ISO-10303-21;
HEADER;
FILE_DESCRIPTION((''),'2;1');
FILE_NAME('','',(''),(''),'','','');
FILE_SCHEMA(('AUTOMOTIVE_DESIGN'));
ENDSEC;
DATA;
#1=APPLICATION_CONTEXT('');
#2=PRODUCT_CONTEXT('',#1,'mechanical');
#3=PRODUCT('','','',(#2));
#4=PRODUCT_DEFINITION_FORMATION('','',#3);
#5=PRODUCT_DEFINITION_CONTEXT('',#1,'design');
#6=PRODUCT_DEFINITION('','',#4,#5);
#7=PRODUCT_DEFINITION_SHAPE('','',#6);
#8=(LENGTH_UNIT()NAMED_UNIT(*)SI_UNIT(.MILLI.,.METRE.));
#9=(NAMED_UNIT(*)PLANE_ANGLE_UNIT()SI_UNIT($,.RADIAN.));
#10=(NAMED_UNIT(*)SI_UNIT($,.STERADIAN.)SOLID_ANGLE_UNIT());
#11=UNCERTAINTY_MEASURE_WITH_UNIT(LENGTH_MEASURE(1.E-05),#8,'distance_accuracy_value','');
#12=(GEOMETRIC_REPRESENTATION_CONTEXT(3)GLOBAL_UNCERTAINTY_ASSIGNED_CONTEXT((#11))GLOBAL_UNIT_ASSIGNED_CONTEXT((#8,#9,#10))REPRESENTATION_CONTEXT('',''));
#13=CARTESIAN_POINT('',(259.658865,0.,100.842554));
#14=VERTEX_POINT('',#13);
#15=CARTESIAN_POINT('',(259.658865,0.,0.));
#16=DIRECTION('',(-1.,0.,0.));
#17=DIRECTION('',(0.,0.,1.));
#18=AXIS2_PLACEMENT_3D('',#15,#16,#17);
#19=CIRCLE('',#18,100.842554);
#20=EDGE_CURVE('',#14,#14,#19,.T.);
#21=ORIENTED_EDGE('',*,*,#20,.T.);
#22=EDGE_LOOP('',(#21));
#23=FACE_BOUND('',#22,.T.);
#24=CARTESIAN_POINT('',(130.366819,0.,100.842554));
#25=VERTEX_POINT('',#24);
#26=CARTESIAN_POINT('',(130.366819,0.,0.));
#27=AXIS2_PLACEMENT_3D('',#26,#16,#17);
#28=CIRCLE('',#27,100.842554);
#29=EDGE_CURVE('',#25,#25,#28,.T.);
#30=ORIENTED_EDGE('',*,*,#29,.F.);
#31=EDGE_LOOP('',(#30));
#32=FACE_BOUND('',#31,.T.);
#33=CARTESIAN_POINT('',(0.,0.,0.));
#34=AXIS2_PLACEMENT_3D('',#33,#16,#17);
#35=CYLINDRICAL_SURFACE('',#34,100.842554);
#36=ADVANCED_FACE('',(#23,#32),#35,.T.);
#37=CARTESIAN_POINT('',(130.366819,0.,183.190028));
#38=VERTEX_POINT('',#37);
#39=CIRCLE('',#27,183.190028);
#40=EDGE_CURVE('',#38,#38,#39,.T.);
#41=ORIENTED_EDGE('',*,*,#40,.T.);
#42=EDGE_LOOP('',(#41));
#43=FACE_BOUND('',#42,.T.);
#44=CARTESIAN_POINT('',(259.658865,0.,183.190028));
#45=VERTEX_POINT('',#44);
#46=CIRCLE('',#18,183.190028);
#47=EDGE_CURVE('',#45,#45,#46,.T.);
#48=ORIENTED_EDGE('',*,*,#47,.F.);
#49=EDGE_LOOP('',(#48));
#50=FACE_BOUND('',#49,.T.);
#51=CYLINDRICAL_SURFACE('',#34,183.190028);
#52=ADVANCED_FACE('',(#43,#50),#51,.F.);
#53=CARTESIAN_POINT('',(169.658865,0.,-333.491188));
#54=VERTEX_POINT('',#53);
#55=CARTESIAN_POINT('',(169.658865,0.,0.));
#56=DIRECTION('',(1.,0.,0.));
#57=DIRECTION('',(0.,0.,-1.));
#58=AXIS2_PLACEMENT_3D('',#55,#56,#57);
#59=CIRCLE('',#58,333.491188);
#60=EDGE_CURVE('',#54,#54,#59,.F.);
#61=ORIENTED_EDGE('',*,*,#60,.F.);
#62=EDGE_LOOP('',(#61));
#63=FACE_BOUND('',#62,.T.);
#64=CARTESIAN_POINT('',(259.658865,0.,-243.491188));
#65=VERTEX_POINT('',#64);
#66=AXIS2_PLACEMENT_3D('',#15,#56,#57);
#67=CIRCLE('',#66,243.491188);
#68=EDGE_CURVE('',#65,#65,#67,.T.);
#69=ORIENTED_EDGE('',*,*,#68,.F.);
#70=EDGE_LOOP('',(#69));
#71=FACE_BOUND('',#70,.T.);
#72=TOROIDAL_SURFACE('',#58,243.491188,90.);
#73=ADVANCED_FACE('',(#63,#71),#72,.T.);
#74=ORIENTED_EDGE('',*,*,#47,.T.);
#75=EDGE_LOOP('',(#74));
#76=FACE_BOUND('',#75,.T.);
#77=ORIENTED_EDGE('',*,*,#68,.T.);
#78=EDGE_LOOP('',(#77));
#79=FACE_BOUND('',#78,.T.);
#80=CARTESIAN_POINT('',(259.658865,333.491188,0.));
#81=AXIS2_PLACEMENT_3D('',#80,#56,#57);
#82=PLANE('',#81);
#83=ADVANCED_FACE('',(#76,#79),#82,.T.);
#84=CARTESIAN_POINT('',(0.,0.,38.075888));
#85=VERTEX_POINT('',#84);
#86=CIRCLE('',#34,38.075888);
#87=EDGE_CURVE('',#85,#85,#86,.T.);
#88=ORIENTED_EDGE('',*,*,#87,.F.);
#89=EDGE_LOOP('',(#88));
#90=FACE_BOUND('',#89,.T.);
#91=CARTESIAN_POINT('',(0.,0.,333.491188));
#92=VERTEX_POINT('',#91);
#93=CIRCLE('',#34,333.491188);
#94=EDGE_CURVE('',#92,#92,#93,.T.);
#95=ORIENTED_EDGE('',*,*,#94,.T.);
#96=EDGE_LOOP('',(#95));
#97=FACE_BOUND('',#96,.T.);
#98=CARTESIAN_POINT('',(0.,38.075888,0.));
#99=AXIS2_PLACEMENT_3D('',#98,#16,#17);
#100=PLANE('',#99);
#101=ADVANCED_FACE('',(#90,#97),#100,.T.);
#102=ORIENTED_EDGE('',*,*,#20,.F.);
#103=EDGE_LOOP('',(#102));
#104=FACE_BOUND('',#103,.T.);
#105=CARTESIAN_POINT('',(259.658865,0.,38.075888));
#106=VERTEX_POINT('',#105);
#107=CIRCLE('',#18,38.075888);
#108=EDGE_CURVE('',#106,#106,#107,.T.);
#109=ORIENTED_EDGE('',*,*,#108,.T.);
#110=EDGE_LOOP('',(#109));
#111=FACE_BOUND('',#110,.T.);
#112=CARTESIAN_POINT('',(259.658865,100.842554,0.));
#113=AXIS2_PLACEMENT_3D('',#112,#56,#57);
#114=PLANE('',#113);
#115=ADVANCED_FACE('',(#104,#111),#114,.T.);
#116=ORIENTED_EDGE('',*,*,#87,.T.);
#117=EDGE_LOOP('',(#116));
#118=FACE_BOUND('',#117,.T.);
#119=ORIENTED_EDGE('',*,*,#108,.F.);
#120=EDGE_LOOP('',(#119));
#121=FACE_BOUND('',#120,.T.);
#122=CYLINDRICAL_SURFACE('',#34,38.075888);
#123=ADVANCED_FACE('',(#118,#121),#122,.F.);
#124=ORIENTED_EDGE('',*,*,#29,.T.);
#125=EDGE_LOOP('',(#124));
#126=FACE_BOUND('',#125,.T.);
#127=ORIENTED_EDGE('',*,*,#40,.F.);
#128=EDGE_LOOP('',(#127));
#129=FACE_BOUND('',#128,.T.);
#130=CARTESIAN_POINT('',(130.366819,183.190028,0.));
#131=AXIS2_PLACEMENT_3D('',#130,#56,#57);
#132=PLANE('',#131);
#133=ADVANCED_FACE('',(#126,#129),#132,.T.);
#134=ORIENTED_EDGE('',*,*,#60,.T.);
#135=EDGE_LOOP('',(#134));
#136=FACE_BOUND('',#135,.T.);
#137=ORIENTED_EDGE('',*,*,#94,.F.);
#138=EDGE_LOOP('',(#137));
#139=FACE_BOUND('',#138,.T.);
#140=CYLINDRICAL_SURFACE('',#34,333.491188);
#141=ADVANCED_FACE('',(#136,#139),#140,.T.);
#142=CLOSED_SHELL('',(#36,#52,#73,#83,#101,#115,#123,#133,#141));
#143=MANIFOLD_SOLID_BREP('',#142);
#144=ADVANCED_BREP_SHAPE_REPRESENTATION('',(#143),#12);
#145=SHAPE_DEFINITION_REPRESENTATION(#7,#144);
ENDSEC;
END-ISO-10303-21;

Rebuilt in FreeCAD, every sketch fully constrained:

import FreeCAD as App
import Part
import Sketcher

V = App.Vector


def edges_at(feature, points):
    """Names of the edges that pass closest to the given points."""
    edges = feature.Shape.Edges
    near = lambda p: min(range(len(edges)), key=lambda i: edges[i].distToShape(Part.Vertex(*p))[0])
    return sorted({f"Edge{near(p) + 1}" for p in points})

doc = App.newDocument("Part")
body = doc.addObject("PartDesign::Body", "Body")

sketch1 = body.newObject("Sketcher::SketchObject", "Sketch")
sketch1.AttachmentSupport = (doc.getObject("XY_Plane"), [""])
sketch1.MapMode = "FlatFace"
sketch1.addGeometry([
    Part.LineSegment(V(260, 333, 0), V(0, 333, 0)),
    Part.LineSegment(V(0, 333, 0), V(0, 38, 0)),
    Part.LineSegment(V(0, 38, 0), V(260, 38, 0)),
    Part.LineSegment(V(260, 38, 0), V(260, 101, 0)),
    Part.LineSegment(V(260, 101, 0), V(130, 101, 0)),
    Part.LineSegment(V(130, 101, 0), V(130, 183, 0)),
    Part.LineSegment(V(130, 183, 0), V(260, 183, 0)),
    Part.LineSegment(V(260, 183, 0), V(260, 333, 0)),
], False)
sketch1.addConstraint([
    Sketcher.Constraint("Coincident", 0, 2, 1, 1),
    Sketcher.Constraint("Coincident", 1, 2, 2, 1),
    Sketcher.Constraint("Coincident", 2, 2, 3, 1),
    Sketcher.Constraint("Coincident", 3, 2, 4, 1),
    Sketcher.Constraint("Coincident", 4, 2, 5, 1),
    Sketcher.Constraint("Coincident", 5, 2, 6, 1),
    Sketcher.Constraint("Coincident", 6, 2, 7, 1),
    Sketcher.Constraint("Coincident", 7, 2, 0, 1),
    Sketcher.Constraint("Horizontal", 0),
    Sketcher.Constraint("Vertical", 1),
    Sketcher.Constraint("Horizontal", 2),
    Sketcher.Constraint("Vertical", 3),
    Sketcher.Constraint("Horizontal", 4),
    Sketcher.Constraint("Vertical", 5),
    Sketcher.Constraint("Horizontal", 6),
    Sketcher.Constraint("Vertical", 7),
    Sketcher.Constraint("PointOnObject", 0, 2, -2),
    Sketcher.Constraint("Vertical", 3, 2, 6, 2),
    Sketcher.Constraint("DistanceY", 1, 2, 1, 1, 295.4153),
    Sketcher.Constraint("DistanceY", 7, 1, 7, 2, 150.30116),
    Sketcher.Constraint("DistanceX", 0, 2, 0, 1, 259.658865),
    Sketcher.Constraint("DistanceX", 4, 2, 4, 1, 129.292046),
    Sketcher.Constraint("DistanceY", 3, 1, 3, 2, 62.766666),
    Sketcher.Constraint("DistanceY", -1, 1, 1, 2, 38.075888),
])
revolution = body.newObject("PartDesign::Revolution", "Revolution")
revolution.Profile = sketch1
revolution.ReferenceAxis = (sketch1, ["H_Axis"])
revolution.Angle = 360
doc.recompute()

fillet = body.newObject("PartDesign::Fillet", "Fillet")
fillet.Base = (revolution, edges_at(revolution, [(259.659, 0, -333.491)]))
fillet.Radius = 90

doc.recompute()
